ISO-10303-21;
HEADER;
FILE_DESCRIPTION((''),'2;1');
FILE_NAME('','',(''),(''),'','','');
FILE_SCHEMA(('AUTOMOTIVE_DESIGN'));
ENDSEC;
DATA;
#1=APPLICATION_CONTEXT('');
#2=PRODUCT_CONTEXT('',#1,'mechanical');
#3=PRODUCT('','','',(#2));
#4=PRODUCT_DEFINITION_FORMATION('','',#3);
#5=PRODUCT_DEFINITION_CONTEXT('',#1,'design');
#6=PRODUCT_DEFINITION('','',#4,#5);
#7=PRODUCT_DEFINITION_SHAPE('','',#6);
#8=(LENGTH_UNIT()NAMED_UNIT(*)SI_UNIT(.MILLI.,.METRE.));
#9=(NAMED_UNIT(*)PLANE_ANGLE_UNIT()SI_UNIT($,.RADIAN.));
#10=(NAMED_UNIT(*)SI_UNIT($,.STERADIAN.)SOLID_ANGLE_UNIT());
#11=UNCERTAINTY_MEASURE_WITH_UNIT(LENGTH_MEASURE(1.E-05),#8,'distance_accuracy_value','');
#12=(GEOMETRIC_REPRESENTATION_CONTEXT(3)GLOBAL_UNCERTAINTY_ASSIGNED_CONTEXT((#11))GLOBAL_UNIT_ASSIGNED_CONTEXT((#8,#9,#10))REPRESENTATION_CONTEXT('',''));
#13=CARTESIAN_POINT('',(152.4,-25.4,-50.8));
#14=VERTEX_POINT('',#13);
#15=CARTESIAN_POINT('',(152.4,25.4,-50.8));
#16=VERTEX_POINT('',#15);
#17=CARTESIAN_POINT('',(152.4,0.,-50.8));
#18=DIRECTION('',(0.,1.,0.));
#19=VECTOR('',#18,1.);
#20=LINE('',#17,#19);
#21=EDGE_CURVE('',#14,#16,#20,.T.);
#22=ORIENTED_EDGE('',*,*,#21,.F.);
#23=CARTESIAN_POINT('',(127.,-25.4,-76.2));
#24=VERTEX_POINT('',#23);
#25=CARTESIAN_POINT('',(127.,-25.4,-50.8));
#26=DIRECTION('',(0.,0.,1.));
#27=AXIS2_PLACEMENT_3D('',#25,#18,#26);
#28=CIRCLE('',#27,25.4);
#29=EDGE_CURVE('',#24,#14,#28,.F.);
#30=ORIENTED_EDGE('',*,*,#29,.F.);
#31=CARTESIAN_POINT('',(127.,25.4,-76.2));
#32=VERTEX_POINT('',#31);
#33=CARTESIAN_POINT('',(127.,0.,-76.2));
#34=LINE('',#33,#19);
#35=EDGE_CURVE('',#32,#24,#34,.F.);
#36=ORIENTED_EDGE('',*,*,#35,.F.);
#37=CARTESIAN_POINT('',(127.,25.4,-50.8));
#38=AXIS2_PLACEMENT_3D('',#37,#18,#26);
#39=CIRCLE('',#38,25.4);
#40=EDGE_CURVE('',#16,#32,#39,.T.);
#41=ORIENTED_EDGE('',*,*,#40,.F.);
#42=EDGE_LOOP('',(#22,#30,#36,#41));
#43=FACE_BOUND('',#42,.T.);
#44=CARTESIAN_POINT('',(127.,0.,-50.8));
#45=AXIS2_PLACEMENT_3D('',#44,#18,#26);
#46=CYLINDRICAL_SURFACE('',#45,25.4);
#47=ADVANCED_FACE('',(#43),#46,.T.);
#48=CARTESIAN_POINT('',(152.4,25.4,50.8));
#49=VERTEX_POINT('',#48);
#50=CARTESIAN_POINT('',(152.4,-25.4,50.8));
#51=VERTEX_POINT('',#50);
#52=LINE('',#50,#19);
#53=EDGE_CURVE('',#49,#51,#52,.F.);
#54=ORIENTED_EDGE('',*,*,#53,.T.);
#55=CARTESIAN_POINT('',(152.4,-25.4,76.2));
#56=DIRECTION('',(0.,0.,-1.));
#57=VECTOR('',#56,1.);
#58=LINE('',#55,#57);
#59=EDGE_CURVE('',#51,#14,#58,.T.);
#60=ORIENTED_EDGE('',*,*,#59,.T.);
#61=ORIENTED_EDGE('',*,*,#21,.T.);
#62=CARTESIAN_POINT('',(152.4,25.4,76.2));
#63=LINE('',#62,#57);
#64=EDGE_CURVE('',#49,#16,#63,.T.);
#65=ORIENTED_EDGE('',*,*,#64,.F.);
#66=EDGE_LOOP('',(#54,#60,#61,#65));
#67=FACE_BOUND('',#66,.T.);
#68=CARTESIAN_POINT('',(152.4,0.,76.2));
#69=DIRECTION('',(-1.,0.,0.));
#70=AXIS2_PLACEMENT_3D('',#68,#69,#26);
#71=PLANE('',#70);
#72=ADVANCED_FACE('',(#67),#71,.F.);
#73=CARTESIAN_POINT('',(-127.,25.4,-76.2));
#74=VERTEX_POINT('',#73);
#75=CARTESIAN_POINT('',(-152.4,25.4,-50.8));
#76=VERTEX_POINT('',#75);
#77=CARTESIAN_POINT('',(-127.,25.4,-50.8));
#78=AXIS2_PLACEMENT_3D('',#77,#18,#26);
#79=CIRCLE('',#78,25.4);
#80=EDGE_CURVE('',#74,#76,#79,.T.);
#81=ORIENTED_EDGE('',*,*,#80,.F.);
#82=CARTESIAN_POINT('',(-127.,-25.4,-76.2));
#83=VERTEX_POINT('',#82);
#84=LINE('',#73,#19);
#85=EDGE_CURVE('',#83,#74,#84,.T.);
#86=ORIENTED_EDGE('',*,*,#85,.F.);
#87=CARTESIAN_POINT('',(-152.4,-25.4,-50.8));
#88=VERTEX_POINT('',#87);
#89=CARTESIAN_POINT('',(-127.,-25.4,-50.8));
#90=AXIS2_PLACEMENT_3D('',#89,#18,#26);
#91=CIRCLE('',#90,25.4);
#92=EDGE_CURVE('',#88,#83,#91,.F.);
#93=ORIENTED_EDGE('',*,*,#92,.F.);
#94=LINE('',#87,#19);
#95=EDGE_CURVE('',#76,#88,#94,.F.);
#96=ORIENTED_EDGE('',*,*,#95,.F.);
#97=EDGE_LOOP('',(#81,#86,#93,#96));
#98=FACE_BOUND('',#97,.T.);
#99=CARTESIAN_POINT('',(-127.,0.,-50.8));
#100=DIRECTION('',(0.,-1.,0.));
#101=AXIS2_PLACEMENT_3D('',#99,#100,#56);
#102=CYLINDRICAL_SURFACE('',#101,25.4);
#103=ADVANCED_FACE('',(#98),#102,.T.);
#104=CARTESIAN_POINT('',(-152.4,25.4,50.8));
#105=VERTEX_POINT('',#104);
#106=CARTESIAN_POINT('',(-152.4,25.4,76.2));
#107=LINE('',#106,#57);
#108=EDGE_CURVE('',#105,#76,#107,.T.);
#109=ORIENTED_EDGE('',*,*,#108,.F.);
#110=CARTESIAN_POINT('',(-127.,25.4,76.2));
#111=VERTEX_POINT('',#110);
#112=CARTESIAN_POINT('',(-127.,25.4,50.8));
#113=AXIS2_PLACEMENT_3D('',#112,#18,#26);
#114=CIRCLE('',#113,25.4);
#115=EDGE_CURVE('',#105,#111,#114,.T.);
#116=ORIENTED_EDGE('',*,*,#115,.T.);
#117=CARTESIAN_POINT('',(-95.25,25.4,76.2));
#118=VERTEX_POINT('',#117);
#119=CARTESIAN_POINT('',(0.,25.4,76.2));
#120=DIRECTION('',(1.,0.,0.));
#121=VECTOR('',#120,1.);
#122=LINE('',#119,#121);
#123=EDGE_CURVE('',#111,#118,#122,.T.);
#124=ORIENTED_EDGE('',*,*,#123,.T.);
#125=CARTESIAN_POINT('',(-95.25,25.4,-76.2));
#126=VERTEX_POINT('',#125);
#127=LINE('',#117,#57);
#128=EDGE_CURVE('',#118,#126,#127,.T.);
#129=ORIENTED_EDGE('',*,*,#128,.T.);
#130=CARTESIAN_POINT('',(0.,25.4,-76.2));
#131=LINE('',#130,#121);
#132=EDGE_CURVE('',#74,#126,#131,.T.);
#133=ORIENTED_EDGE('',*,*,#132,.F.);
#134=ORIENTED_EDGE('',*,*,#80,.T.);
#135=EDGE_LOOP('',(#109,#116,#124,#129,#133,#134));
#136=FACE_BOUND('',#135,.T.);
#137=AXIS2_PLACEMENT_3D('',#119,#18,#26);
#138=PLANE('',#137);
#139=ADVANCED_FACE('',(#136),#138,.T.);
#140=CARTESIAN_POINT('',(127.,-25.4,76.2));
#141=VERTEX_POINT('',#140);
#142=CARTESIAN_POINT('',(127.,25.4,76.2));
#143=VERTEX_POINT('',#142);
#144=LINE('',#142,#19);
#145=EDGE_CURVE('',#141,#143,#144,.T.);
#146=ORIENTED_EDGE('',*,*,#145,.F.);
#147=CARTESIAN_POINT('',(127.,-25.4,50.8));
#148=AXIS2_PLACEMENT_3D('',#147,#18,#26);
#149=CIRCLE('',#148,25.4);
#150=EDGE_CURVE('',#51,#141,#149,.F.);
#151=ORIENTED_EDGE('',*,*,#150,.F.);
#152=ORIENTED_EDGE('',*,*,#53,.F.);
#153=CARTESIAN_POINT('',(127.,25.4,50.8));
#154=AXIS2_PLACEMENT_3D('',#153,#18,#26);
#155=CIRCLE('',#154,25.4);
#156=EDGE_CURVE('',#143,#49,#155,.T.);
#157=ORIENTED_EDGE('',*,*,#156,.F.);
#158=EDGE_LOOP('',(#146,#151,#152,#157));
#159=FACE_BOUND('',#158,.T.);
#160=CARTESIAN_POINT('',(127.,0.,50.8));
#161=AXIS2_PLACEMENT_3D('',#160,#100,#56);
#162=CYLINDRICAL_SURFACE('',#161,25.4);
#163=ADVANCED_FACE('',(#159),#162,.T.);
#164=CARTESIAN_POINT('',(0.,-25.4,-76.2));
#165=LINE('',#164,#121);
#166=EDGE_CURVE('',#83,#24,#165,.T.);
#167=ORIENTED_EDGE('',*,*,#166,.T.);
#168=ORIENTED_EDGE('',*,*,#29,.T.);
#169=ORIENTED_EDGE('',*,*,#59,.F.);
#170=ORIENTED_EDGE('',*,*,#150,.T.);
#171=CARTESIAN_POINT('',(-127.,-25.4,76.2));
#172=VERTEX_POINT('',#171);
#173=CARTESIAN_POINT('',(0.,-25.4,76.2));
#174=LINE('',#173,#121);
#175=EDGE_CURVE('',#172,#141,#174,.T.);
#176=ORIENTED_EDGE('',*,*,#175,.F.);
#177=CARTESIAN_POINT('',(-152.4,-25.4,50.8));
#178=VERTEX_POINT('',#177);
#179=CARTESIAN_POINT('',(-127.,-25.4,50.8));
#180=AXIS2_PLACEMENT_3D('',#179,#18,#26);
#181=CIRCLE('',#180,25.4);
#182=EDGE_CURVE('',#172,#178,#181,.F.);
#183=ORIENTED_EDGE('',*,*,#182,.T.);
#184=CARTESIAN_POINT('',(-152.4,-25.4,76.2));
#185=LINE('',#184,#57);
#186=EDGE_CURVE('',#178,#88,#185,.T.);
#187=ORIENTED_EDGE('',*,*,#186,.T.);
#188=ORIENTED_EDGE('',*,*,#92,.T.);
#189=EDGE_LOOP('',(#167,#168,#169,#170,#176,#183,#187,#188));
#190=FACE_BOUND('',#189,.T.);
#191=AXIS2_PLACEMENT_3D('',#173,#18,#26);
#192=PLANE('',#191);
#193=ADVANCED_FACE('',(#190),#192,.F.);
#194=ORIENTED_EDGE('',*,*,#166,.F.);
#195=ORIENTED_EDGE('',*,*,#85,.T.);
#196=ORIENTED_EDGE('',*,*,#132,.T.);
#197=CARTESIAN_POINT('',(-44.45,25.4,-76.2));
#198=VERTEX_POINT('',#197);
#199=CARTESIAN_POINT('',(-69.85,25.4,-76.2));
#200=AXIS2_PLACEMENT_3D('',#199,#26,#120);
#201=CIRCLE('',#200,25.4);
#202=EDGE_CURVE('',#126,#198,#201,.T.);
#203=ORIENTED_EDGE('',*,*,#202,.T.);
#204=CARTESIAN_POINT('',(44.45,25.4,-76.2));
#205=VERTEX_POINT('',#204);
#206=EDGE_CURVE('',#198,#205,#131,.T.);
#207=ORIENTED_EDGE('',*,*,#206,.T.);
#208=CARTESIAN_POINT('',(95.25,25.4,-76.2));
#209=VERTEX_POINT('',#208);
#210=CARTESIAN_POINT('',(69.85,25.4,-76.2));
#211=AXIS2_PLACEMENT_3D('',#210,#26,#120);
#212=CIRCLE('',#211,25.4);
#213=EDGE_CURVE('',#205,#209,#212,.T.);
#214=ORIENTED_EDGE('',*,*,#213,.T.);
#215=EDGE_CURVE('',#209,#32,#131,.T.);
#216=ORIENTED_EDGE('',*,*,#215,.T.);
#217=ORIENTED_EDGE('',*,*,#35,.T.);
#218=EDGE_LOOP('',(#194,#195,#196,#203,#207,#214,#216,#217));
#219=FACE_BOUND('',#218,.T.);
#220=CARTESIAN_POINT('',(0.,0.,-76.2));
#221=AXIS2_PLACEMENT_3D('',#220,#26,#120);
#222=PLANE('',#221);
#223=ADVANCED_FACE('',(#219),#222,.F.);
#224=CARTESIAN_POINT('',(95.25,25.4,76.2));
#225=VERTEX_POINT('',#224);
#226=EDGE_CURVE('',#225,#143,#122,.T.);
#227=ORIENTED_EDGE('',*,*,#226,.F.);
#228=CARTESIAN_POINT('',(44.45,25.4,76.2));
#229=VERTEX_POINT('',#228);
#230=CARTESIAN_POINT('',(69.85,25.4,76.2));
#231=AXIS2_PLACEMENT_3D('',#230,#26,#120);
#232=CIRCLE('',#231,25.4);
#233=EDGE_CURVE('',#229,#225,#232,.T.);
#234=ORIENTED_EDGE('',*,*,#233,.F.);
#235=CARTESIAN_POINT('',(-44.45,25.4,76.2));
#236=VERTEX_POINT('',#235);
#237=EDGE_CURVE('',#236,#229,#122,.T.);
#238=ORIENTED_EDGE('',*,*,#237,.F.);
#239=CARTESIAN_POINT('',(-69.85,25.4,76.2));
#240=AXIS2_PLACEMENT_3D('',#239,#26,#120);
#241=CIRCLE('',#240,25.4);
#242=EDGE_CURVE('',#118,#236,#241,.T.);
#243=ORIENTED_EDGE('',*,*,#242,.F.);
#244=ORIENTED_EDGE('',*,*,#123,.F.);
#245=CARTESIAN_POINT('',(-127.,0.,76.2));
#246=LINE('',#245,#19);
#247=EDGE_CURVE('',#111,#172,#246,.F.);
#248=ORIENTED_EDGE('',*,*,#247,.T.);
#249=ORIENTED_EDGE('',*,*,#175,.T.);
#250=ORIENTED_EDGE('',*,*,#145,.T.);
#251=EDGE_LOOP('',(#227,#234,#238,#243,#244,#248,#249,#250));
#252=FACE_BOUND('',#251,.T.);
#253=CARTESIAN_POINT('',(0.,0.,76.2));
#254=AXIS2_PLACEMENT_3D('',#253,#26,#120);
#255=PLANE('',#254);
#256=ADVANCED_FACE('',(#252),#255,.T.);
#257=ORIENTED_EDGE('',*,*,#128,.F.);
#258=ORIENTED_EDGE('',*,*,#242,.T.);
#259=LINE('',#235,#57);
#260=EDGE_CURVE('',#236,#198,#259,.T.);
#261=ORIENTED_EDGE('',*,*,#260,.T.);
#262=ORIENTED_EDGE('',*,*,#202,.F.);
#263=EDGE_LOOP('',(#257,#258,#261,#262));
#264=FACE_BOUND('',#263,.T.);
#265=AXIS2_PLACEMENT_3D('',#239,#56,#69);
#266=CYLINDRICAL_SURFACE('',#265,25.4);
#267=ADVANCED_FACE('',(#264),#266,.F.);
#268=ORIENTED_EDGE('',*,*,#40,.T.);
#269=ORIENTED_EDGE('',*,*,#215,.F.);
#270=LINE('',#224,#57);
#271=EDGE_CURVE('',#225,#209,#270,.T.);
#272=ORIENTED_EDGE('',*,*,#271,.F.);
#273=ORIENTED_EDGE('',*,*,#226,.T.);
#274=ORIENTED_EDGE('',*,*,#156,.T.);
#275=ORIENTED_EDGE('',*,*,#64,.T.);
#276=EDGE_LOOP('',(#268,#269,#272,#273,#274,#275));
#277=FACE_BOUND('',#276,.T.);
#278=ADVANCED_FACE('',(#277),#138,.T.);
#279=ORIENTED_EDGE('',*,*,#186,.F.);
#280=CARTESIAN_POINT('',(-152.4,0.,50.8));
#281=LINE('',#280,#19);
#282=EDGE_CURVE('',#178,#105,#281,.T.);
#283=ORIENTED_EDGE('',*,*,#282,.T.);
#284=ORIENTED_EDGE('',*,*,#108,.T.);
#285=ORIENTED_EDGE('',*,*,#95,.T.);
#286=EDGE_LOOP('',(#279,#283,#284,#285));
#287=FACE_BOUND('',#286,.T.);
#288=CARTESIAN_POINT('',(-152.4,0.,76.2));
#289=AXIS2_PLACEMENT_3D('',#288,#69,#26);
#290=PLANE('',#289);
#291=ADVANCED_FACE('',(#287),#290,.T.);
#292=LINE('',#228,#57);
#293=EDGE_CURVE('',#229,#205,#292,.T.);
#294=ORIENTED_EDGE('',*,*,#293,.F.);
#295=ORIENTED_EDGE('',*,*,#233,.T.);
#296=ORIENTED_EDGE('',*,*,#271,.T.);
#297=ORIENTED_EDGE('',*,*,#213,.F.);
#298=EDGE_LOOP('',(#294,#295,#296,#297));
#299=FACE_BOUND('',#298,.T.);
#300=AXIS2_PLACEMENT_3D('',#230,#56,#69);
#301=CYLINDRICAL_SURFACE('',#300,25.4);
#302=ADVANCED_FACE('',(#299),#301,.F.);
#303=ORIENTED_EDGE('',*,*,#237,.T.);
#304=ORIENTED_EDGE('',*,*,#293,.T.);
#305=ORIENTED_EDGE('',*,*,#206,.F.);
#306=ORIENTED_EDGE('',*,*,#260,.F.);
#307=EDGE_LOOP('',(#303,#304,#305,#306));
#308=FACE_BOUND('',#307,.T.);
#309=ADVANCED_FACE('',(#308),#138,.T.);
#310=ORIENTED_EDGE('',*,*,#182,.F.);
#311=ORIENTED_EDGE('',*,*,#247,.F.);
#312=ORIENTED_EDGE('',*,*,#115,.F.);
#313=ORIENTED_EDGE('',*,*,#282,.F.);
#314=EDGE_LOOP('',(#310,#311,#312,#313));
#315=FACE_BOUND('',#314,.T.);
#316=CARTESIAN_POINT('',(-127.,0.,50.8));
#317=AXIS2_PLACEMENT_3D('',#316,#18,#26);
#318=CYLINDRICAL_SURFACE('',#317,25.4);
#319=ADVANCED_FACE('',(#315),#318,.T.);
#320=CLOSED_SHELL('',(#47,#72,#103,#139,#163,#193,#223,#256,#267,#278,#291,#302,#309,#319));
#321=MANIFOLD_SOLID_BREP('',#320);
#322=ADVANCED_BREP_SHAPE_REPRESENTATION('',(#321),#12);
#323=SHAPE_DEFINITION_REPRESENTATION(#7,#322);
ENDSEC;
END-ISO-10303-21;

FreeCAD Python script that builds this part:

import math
import FreeCAD as App
import Part
import Sketcher
Q = App.Units.Quantity


def edges_at(feature, points):
    """Names of the edges that pass closest to the given points."""
    edges = feature.Shape.Edges
    near = lambda p: min(range(len(edges)), key=lambda i: edges[i].distToShape(Part.Vertex(*p))[0])
    return sorted({f"Edge{near(p) + 1}" for p in points})

doc = App.newDocument("Part")
body = doc.addObject("PartDesign::Body", "Body")

# Sketch on XY plane
sketch1 = body.newObject("Sketcher::SketchObject", "Sketch")
sketch1.AttachmentSupport = (doc.getObject("XY_Plane"), [""])
sketch1.MapMode = "FlatFace"
sketch1.addGeometry(Part.LineSegment(App.Vector(-152.4, 25.4, 0), App.Vector(-152.4, -25.4, 0)), False)
sketch1.addGeometry(Part.LineSegment(App.Vector(-152.4, -25.4, 0), App.Vector(152.4, -25.4, 0)), False)
sketch1.addGeometry(Part.LineSegment(App.Vector(152.4, -25.4, 0), App.Vector(152.4, 25.4, 0)), False)
sketch1.addGeometry(Part.LineSegment(App.Vector(152.4, 25.4, 0), App.Vector(95.25, 25.4, 0)), False)
sketch1.addGeometry(Part.ArcOfCircle(Part.Circle(App.Vector(69.85, 25.4, 0), App.Vector(0, 0, 1), 25.4), math.radians(180), math.radians(360)), False)
sketch1.addGeometry(Part.LineSegment(App.Vector(44.45, 25.4, 0), App.Vector(-44.45, 25.4, 0)), False)
sketch1.addGeometry(Part.ArcOfCircle(Part.Circle(App.Vector(-69.85, 25.4, 0), App.Vector(0, 0, 1), 25.4), math.radians(180), math.radians(360)), False)
sketch1.addGeometry(Part.LineSegment(App.Vector(-95.25, 25.4, 0), App.Vector(-152.4, 25.4, 0)), False)
sketch1.addConstraint(Sketcher.Constraint("Coincident", 0, 2, 1, 1))
sketch1.addConstraint(Sketcher.Constraint("Coincident", 1, 2, 2, 1))
sketch1.addConstraint(Sketcher.Constraint("Coincident", 2, 2, 3, 1))
sketch1.addConstraint(Sketcher.Constraint("Coincident", 3, 2, 4, 2))
sketch1.addConstraint(Sketcher.Constraint("Coincident", 4, 1, 5, 1))
sketch1.addConstraint(Sketcher.Constraint("Coincident", 5, 2, 6, 2))
sketch1.addConstraint(Sketcher.Constraint("Coincident", 6, 1, 7, 1))
sketch1.addConstraint(Sketcher.Constraint("Coincident", 7, 2, 0, 1))
sketch1.addConstraint(Sketcher.Constraint("Vertical", 0))
sketch1.addConstraint(Sketcher.Constraint("Horizontal", 1))
sketch1.addConstraint(Sketcher.Constraint("Vertical", 2))
sketch1.addConstraint(Sketcher.Constraint("Horizontal", 3))
sketch1.addConstraint(Sketcher.Constraint("Horizontal", 5))
sketch1.addConstraint(Sketcher.Constraint("Horizontal", 7))
sketch1.addConstraint(Sketcher.Constraint("Equal", 4, 6))
sketch1.addConstraint(Sketcher.Constraint("Symmetric", 0, 2, 2, 2, -1, 1))
sketch1.addConstraint(Sketcher.Constraint("Symmetric", 4, 3, 6, 3, -2))
sketch1.addConstraint(Sketcher.Constraint("Horizontal", 6, 3, 2, 2))
sketch1.addConstraint(Sketcher.Constraint("Horizontal", 3, 2, 4, 1))
sketch1.addConstraint(Sketcher.Constraint("Horizontal", 5, 2, 6, 1))
sketch1.addConstraint(Sketcher.Constraint("Radius", 4, Q("1 in")))
sketch1.addConstraint(Sketcher.Constraint("DistanceX", 1, 1, 1, 2, Q("12 in")))
sketch1.addConstraint(Sketcher.Constraint("DistanceY", 0, 2, 0, 1, Q("2 in")))
sketch1.addConstraint(Sketcher.Constraint("DistanceX", 5, 2, 5, 1, Q("3.5 in")))
pad1 = body.newObject("PartDesign::Pad", "Pad")
pad1.Profile = sketch1
pad1.Length = Q("6 in")
pad1.Midplane = True
doc.recompute()

fillet = body.newObject("PartDesign::Fillet", "Fillet")
fillet.Base = (pad1, edges_at(pad1, [
    (-152.4, 0, -76.2),
    (-152.4, 0, 76.2),
    (152.4, 0, 76.2),
    (152.4, 0, -76.2),
]))
fillet.Radius = Q("1 in")

doc.recompute()
